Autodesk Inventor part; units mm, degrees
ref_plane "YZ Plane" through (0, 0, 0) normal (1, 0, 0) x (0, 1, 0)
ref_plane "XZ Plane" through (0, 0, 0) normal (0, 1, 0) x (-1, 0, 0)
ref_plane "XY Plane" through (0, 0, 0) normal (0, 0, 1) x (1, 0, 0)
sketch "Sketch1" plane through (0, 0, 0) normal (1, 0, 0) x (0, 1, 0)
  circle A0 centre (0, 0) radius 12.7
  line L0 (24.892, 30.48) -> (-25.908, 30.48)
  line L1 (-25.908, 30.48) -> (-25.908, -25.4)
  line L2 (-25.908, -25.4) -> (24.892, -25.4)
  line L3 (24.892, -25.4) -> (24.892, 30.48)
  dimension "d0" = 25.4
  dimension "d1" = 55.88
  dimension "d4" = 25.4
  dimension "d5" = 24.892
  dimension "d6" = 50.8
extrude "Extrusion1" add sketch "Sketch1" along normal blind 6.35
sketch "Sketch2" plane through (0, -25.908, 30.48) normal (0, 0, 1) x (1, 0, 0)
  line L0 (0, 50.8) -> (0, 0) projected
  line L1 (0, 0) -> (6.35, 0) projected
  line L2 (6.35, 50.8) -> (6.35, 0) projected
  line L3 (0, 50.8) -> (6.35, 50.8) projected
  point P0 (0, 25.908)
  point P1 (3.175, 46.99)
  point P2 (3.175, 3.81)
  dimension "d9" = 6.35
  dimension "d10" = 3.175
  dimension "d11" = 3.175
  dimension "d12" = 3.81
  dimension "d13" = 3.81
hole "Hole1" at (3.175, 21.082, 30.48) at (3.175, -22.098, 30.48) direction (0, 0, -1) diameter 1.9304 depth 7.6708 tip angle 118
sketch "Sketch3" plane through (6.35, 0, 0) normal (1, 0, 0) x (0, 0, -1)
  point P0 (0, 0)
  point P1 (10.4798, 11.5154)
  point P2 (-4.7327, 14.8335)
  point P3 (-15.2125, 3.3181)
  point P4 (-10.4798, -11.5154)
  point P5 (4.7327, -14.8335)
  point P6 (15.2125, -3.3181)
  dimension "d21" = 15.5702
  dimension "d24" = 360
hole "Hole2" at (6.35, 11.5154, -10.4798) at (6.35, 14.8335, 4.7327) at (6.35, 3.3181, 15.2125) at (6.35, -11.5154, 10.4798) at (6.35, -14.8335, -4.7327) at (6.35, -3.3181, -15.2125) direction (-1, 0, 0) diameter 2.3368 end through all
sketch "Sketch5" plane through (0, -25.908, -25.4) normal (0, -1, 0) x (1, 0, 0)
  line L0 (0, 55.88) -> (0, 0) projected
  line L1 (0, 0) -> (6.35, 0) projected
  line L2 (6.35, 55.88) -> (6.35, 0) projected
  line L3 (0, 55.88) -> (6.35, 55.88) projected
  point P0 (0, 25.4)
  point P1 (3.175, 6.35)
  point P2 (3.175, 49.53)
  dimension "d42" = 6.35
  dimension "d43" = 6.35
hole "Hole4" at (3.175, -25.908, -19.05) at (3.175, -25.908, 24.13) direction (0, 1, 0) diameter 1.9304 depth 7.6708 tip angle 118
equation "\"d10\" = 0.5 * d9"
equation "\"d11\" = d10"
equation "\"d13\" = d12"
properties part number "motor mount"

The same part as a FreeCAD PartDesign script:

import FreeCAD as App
import Part
import Sketcher
from FreeCAD import Vector
Q = App.Units.Quantity


def add_polygon(sketch, points):
    """Adds a closed chain of lines whose ends are joined by coincident constraints."""
    first, n = sketch.GeometryCount, len(points)
    for a, b in zip(points, points[1:] + points[:1]):
        sketch.addGeometry(Part.LineSegment(App.Vector(*a, 0), App.Vector(*b, 0)), False)
    for i in range(n):
        sketch.addConstraint(Sketcher.Constraint("Coincident", first + i, 2, first + (i + 1) % n, 1))

doc = App.newDocument("Part")
body = doc.addObject("PartDesign::Body", "Body")

sketch1 = body.newObject("Sketcher::SketchObject", "Sketch")
sketch1.AttachmentSupport = (doc.getObject("YZ_Plane"), [""])
sketch1.MapMode = "FlatFace"
add_polygon(sketch1, [(25, -25), (25, 30), (-26, 30), (-26, -25)])
sketch1.addGeometry(Part.Circle(Vector(0, 0, 0), Vector(0, 0, 1), 13), False)
sketch1.addConstraint(Sketcher.Constraint("Vertical", 0))
sketch1.addConstraint(Sketcher.Constraint("Horizontal", 1))
sketch1.addConstraint(Sketcher.Constraint("Vertical", 2))
sketch1.addConstraint(Sketcher.Constraint("Horizontal", 3))
sketch1.addConstraint(Sketcher.Constraint("Coincident", 4, 3, -1, 1))
sketch1.addConstraint(Sketcher.Constraint("Diameter", 4, Q("1 in")))
sketch1.addConstraint(Sketcher.Constraint("DistanceX", 1, 2, 1, 1, Q("2 in")))
sketch1.addConstraint(Sketcher.Constraint("DistanceY", 0, 1, 0, 2, Q("2.2 in")))
sketch1.addConstraint(Sketcher.Constraint("DistanceY", 2, 2, -1, 1, Q("1 in")))
sketch1.addConstraint(Sketcher.Constraint("DistanceX", -1, 1, 0, 2, Q("0.98 in")))
pad1 = body.newObject("PartDesign::Pad", "Pad")
pad1.Profile = sketch1
pad1.Length = Q("0.25 in")

sketch2 = body.newObject("Sketcher::SketchObject", "Sketch001")
sketch2.AttachmentSupport = (doc.getObject("XY_Plane"), [""])
sketch2.MapMode = "FlatFace"
sketch2.AttachmentOffset = App.Placement(Vector(0, 0, 1.2 * 25.4), App.Rotation())
sketch2.addGeometry(Part.Circle(Vector(3.2, 21.1, 0), Vector(0, 0, 1), 1), False)
sketch2.addGeometry(Part.Circle(Vector(3.2, -22.1, 0), Vector(0, 0, 1), 1), False)
sketch2.addConstraint(Sketcher.Constraint("Equal", 0, 1))
sketch2.addConstraint(Sketcher.Constraint("Vertical", 0, 3, 1, 3))
sketch2.addConstraint(Sketcher.Constraint("Diameter", 0, Q("0.076 in")))
sketch2.addConstraint(Sketcher.Constraint("DistanceY", 1, 3, 0, 3, Q("1.7 in")))
sketch2.addConstraint(Sketcher.Constraint("DistanceY", -1, 1, 0, 3, Q("0.83 in")))
sketch2.addConstraint(Sketcher.Constraint("DistanceX", -1, 1, 0, 3, Q("0.125 in")))
doc.recompute()
hole = body.newObject("PartDesign::Hole", "Hole")
hole.Profile = sketch2
hole.ThreadType = "None"
hole.Diameter = Q("0.076 in")
hole.DepthType = "Dimension"
hole.Depth = Q("0.302 in")
hole.DrillPoint = "Angled"
hole.DrillPointAngle = 118

sketch3 = body.newObject("Sketcher::SketchObject", "Sketch002")
sketch3.AttachmentSupport = (doc.getObject("YZ_Plane"), [""])
sketch3.MapMode = "FlatFace"
sketch3.AttachmentOffset = App.Placement(Vector(0, 0, 0.25 * 25.4), App.Rotation())
sketch3.addGeometry(Part.Circle(Vector(11.5, -10.5, 0), Vector(0, 0, 1), 1.2), False)
sketch3.addGeometry(Part.Circle(Vector(14.8, 4.7, 0), Vector(0, 0, 1), 1.2), False)
sketch3.addGeometry(Part.Circle(Vector(3.3, 15.2, 0), Vector(0, 0, 1), 1.2), False)
sketch3.addGeometry(Part.Circle(Vector(-11.5, 10.5, 0), Vector(0, 0, 1), 1.2), False)
sketch3.addGeometry(Part.Circle(Vector(-14.8, -4.7, 0), Vector(0, 0, 1), 1.2), False)
sketch3.addGeometry(Part.Circle(Vector(-3.3, -15.2, 0), Vector(0, 0, 1), 1.2), False)
sketch3.addConstraint(Sketcher.Constraint("Equal", 0, 1))
sketch3.addConstraint(Sketcher.Constraint("Equal", 1, 2))
sketch3.addConstraint(Sketcher.Constraint("Equal", 2, 3))
sketch3.addConstraint(Sketcher.Constraint("Equal", 3, 4))
sketch3.addConstraint(Sketcher.Constraint("Equal", 4, 5))
sketch3.addConstraint(Sketcher.Constraint("Symmetric", 0, 3, 3, 3, -1, 1))
sketch3.addConstraint(Sketcher.Constraint("Symmetric", 1, 3, 4, 3, -1, 1))
sketch3.addConstraint(Sketcher.Constraint("Symmetric", 2, 3, 5, 3, -1, 1))
sketch3.addConstraint(Sketcher.Constraint("Diameter", 0, Q("0.092 in")))
sketch3.addConstraint(Sketcher.Constraint("DistanceX", -1, 1, 1, 3, Q("0.584 in")))
sketch3.addConstraint(Sketcher.Constraint("DistanceX", 3, 3, 2, 3, Q("0.584 in")))
sketch3.addConstraint(Sketcher.Constraint("DistanceY", 0, 3, -1, 1, Q("0.4126 in")))
sketch3.addConstraint(Sketcher.Constraint("DistanceY", 1, 3, 2, 3, Q("0.4126 in")))
sketch3.addConstraint(Sketcher.Constraint("DistanceY", 0, 3, 2, 3, Q("1.0115 in")))
sketch3.addConstraint(Sketcher.Constraint("DistanceX", -1, 1, 0, 3, Q("11.5154 mm")))
doc.recompute()
hole2 = body.newObject("PartDesign::Hole", "Hole001")
hole2.Profile = sketch3
hole2.ThreadType = "None"
hole2.Diameter = Q("0.092 in")
hole2.DepthType = "ThroughAll"

sketch4 = body.newObject("Sketcher::SketchObject", "Sketch003")
sketch4.AttachmentSupport = (doc.getObject("XZ_Plane"), [""])
sketch4.MapMode = "FlatFace"
sketch4.AttachmentOffset = App.Placement(Vector(0, 0, 1.02 * 25.4), App.Rotation())
sketch4.addGeometry(Part.Circle(Vector(3.2, -19.1, 0), Vector(0, 0, 1), 1), False)
sketch4.addGeometry(Part.Circle(Vector(3.2, 24.1, 0), Vector(0, 0, 1), 1), False)
sketch4.addConstraint(Sketcher.Constraint("Equal", 0, 1))
sketch4.addConstraint(Sketcher.Constraint("Vertical", 0, 3, 1, 3))
sketch4.addConstraint(Sketcher.Constraint("Diameter", 0, Q("0.076 in")))
sketch4.addConstraint(Sketcher.Constraint("DistanceY", 0, 3, 1, 3, Q("1.7 in")))
sketch4.addConstraint(Sketcher.Constraint("DistanceY", 0, 3, -1, 1, Q("0.75 in")))
sketch4.addConstraint(Sketcher.Constraint("DistanceX", -1, 1, 0, 3, Q("0.125 in")))
doc.recompute()
hole3 = body.newObject("PartDesign::Hole", "Hole002")
hole3.Profile = sketch4
hole3.ThreadType = "None"
hole3.Diameter = Q("0.076 in")
hole3.DepthType = "Dimension"
hole3.Depth = Q("0.302 in")
hole3.DrillPoint = "Angled"
hole3.DrillPointAngle = 118

doc.recompute()
